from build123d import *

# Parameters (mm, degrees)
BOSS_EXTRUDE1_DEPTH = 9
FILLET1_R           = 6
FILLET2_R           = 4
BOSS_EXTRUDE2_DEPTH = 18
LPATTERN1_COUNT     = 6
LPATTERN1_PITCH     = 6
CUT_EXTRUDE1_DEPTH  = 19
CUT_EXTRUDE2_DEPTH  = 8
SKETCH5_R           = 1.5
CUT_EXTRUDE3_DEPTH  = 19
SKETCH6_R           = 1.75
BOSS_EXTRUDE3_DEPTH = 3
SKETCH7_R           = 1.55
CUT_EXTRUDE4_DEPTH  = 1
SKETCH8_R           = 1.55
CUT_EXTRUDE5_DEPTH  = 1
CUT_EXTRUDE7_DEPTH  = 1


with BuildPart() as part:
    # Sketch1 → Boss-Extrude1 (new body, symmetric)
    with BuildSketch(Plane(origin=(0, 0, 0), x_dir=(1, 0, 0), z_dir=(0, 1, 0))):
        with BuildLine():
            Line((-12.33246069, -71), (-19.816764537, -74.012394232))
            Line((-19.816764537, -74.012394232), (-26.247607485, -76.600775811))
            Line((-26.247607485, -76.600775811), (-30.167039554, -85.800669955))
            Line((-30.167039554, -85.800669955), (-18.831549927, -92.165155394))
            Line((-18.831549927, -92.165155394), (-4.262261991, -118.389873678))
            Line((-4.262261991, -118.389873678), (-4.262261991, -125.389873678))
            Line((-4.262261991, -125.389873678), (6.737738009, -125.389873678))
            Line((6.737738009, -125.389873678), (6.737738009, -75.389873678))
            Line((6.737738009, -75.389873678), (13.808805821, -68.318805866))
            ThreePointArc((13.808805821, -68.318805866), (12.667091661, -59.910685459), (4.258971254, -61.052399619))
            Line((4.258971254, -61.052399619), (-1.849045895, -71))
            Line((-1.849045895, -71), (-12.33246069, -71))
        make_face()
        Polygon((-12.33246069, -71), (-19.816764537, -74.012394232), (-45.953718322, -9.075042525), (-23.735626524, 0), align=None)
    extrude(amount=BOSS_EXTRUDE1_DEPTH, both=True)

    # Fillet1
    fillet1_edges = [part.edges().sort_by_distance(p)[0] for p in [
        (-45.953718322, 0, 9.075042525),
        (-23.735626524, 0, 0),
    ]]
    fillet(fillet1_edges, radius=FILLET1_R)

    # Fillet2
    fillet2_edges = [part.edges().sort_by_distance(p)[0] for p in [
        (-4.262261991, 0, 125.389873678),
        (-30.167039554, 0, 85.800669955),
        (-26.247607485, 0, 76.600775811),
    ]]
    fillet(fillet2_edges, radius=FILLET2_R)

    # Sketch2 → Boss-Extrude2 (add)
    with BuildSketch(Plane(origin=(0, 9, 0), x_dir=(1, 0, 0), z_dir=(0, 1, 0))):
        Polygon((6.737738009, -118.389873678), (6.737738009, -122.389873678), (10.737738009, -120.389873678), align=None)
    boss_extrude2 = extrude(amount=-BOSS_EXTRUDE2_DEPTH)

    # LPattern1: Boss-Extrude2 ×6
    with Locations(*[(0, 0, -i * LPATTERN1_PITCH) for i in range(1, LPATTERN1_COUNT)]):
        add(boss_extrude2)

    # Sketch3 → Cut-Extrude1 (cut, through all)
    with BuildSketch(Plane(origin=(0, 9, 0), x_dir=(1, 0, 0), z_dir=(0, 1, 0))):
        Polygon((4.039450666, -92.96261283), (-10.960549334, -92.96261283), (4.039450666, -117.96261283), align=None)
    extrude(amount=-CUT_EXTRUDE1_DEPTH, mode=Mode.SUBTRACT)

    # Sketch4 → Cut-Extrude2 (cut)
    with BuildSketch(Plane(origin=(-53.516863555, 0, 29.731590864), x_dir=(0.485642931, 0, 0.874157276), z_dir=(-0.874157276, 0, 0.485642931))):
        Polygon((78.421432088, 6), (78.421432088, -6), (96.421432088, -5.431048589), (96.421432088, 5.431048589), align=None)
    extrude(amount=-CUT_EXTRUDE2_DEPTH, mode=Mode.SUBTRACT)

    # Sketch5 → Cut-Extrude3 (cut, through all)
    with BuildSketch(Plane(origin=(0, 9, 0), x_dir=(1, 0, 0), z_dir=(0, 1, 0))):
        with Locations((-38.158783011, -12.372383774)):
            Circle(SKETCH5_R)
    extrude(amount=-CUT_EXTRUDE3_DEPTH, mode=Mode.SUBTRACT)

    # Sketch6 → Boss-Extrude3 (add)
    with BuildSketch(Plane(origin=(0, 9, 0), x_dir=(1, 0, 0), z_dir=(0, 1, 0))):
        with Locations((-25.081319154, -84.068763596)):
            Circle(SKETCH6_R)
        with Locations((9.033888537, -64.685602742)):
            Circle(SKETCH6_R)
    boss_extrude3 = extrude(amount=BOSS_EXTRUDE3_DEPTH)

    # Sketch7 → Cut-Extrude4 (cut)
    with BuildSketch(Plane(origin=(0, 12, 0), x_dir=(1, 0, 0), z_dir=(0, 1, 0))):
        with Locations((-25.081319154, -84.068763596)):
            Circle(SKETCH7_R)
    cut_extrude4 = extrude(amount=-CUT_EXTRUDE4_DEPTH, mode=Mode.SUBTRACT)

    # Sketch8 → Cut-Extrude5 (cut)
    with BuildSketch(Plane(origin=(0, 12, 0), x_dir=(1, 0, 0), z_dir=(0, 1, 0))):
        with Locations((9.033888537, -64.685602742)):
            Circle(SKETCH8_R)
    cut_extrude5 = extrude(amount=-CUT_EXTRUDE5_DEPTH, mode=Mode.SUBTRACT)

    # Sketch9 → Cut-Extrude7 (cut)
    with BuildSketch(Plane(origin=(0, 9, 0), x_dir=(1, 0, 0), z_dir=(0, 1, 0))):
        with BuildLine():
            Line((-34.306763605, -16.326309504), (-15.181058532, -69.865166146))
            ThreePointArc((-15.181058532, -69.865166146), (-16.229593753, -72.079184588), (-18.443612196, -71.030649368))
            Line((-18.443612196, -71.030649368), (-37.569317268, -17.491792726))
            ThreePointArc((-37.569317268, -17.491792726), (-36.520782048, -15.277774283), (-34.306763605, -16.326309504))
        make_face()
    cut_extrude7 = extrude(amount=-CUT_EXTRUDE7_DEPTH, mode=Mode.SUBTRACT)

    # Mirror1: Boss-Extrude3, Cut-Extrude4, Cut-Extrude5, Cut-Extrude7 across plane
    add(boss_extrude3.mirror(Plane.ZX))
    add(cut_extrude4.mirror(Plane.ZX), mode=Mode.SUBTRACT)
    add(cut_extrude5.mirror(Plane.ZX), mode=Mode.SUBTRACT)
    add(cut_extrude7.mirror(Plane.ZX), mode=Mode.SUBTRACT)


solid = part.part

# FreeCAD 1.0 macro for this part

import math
import FreeCAD as App
import Part
import Sketcher

V = App.Vector
Q = App.Units.Quantity


def edges_at(feature, points):
    """Names of the edges that pass closest to the given points."""
    edges = feature.Shape.Edges
    near = lambda p: min(range(len(edges)), key=lambda i: edges[i].distToShape(Part.Vertex(*p))[0])
    return sorted({f"Edge{near(p) + 1}" for p in points})


def add_polygon(sketch, points):
    """Adds a closed chain of lines whose ends are joined by coincident constraints."""
    first, n = sketch.GeometryCount, len(points)
    for a, b in zip(points, points[1:] + points[:1]):
        sketch.addGeometry(Part.LineSegment(App.Vector(*a, 0), App.Vector(*b, 0)), False)
    for i in range(n):
        sketch.addConstraint(Sketcher.Constraint("Coincident", first + i, 2, first + (i + 1) % n, 1))

doc = App.newDocument("Part")
body = doc.addObject("PartDesign::Body", "Body")

# Sketch on XZ plane
sketch1 = body.newObject("Sketcher::SketchObject", "Sketch")
sketch1.AttachmentSupport = (doc.getObject("XZ_Plane"), [""])
sketch1.MapMode = "FlatFace"
sketch1.addGeometry(Part.LineSegment(V(-19.816765, 74.012394, 0), V(-26.247607, 76.600776, 0)), False)
sketch1.addGeometry(Part.LineSegment(V(-26.247607, 76.600776, 0), V(-30.16704, 85.80067, 0)), False)
sketch1.addGeometry(Part.LineSegment(V(-30.16704, 85.80067, 0), V(-18.83155, 92.165155, 0)), False)
sketch1.addGeometry(Part.LineSegment(V(-18.83155, 92.165155, 0), V(-4.262262, 118.389874, 0)), False)
sketch1.addGeometry(Part.LineSegment(V(-4.262262, 118.389874, 0), V(-4.262262, 125.389874, 0)), False)
sketch1.addGeometry(Part.LineSegment(V(-4.262262, 125.389874, 0), V(6.737738, 125.389874, 0)), False)
sketch1.addGeometry(Part.LineSegment(V(6.737738, 125.389874, 0), V(6.737738, 75.389874, 0)), False)
sketch1.addGeometry(Part.LineSegment(V(6.737738, 75.389874, 0), V(13.808806, 68.318806, 0)), False)
sketch1.addGeometry(Part.ArcOfCircle(Part.Circle(V(9.033889, 64.685603, 0), V(0, 0, 1), 6), math.radians(-142.732733), math.radians(37.267267)), False)
sketch1.addGeometry(Part.LineSegment(V(4.258971, 61.0524, 0), V(-1.849046, 71, 0)), False)
sketch1.addGeometry(Part.LineSegment(V(-1.849046, 71, 0), V(-12.332461, 71, 0)), False)
sketch1.addGeometry(Part.LineSegment(V(-12.332461, 71, 0), V(-23.735627, 0, 0)), False)
sketch1.addGeometry(Part.LineSegment(V(-23.735627, 0, 0), V(-45.953718, 9.075043, 0)), False)
sketch1.addGeometry(Part.LineSegment(V(-45.953718, 9.075043, 0), V(-19.816765, 74.012394, 0)), False)
sketch1.addConstraint(Sketcher.Constraint("Coincident", 0, 2, 1, 1))
sketch1.addConstraint(Sketcher.Constraint("Coincident", 1, 2, 2, 1))
sketch1.addConstraint(Sketcher.Constraint("Coincident", 2, 2, 3, 1))
sketch1.addConstraint(Sketcher.Constraint("Coincident", 3, 2, 4, 1))
sketch1.addConstraint(Sketcher.Constraint("Coincident", 4, 2, 5, 1))
sketch1.addConstraint(Sketcher.Constraint("Coincident", 5, 2, 6, 1))
sketch1.addConstraint(Sketcher.Constraint("Coincident", 6, 2, 7, 1))
sketch1.addConstraint(Sketcher.Constraint("Coincident", 7, 2, 8, 2))
sketch1.addConstraint(Sketcher.Constraint("Coincident", 8, 1, 9, 1))
sketch1.addConstraint(Sketcher.Constraint("Coincident", 9, 2, 10, 1))
sketch1.addConstraint(Sketcher.Constraint("Coincident", 10, 2, 11, 1))
sketch1.addConstraint(Sketcher.Constraint("Coincident", 11, 2, 12, 1))
sketch1.addConstraint(Sketcher.Constraint("Coincident", 12, 2, 13, 1))
sketch1.addConstraint(Sketcher.Constraint("Coincident", 13, 2, 0, 1))
sketch1.addConstraint(Sketcher.Constraint("Vertical", 4))
sketch1.addConstraint(Sketcher.Constraint("Horizontal", 5))
sketch1.addConstraint(Sketcher.Constraint("Vertical", 6))
sketch1.addConstraint(Sketcher.Constraint("Horizontal", 10))
sketch1.addConstraint(Sketcher.Constraint("PointOnObject", 11, 2, -1))
sketch1.addConstraint(Sketcher.Constraint("Perpendicular", 0, 13))
sketch1.addConstraint(Sketcher.Constraint("Equal", 1, 7))
sketch1.addConstraint(Sketcher.Constraint("Radius", 8, Q("6 mm")))
sketch1.addConstraint(Sketcher.Constraint("DistanceX", 5, 1, 5, 2, Q("11 mm")))
sketch1.addConstraint(Sketcher.Constraint("DistanceY", 4, 1, 4, 2, Q("7 mm")))
sketch1.addConstraint(Sketcher.Constraint("DistanceY", 6, 2, 6, 1, Q("50 mm")))
sketch1.addConstraint(Sketcher.Constraint("Angle", 7, Q("-45 deg")))
sketch1.addConstraint(Sketcher.Constraint("Distance", 1, Q("10 mm")))
sketch1.addConstraint(Sketcher.Constraint("Distance", 2, Q("13 mm")))
sketch1.addConstraint(Sketcher.Constraint("Distance", 3, Q("30 mm")))
sketch1.addConstraint(Sketcher.Constraint("Distance", 12, Q("24 mm")))
sketch1.addConstraint(Sketcher.Constraint("Distance", 13, Q("70 mm")))
sketch1.addConstraint(Sketcher.Constraint("DistanceY", -1, 1, 9, 2, Q("71 mm")))
sketch1.addConstraint(Sketcher.Constraint("DistanceY", -1, 1, 8, 1, Q("61.0524 mm")))
sketch1.addConstraint(Sketcher.Constraint("DistanceX", 10, 2, 6, 2, Q("19.070199 mm")))
sketch1.addConstraint(Sketcher.Constraint("Distance", 9, Q("11.673158 mm")))
sketch1.addConstraint(Sketcher.Constraint("Distance", 11, Q("71.909889 mm")))
sketch1.addConstraint(Sketcher.Constraint("DistanceX", 10, 2, 10, 1, Q("10.483415 mm")))
sketch1.addConstraint(Sketcher.Constraint("DistanceX", -1, 1, 8, 3, Q("9.033889 mm")))
sketch1.addConstraint(Sketcher.Constraint("DistanceX", 1, 2, -1, 1, Q("30.16704 mm")))
sketch1.addConstraint(Sketcher.Constraint("DistanceY", -1, 1, 1, 2, Q("85.80067 mm")))
sketch1.addConstraint(Sketcher.Constraint("DistanceX", 2, 2, -1, 1, Q("18.83155 mm")))
sketch1.addConstraint(Sketcher.Constraint("DistanceX", 12, 2, -1, 1, Q("45.953718 mm")))
sketch1.addConstraint(Sketcher.Constraint("DistanceY", 0, 2, 2, 2, Q("15.56438 mm")))
pad1 = body.newObject("PartDesign::Pad", "Pad")
pad1.Profile = sketch1
pad1.Length = 18
pad1.Midplane = True
doc.recompute()

fillet = body.newObject("PartDesign::Fillet", "Fillet")
fillet.Base = (pad1, edges_at(pad1, [(-45.954, 0, 9.075), (-23.736, 0, 0)]))
fillet.Radius = 6
doc.recompute()

fillet2 = body.newObject("PartDesign::Fillet", "Fillet001")
fillet2.Base = (fillet, edges_at(fillet, [(-4.262, 0, 125.39), (-30.167, 0, 85.801), (-26.248, 0, 76.601)]))
fillet2.Radius = 4

# Sketch on XZ plane
sketch2 = body.newObject("Sketcher::SketchObject", "Sketch001")
sketch2.AttachmentSupport = (doc.getObject("XZ_Plane"), [""])
sketch2.MapMode = "FlatFace"
sketch2.AttachmentOffset = App.Placement(V(0, 0, -9), App.Rotation())
add_polygon(sketch2, [(6.737738, 118.389874), (6.737738, 122.389874), (10.737738, 120.389874)])  # lines 0-2
sketch2.addConstraint(Sketcher.Constraint("Vertical", 0))
sketch2.addConstraint(Sketcher.Constraint("Equal", 1, 2))
sketch2.addConstraint(Sketcher.Constraint("DistanceY", 0, 1, 0, 2, Q("4 mm")))
sketch2.addConstraint(Sketcher.Constraint("DistanceX", 0, 2, 1, 2, Q("4 mm")))
sketch2.addConstraint(Sketcher.Constraint("DistanceX", -1, 1, 0, 2, Q("6.737738 mm")))
sketch2.addConstraint(Sketcher.Constraint("DistanceY", -1, 1, 0, 2, Q("122.389874 mm")))
pad2 = body.newObject("PartDesign::Pad", "Pad001")
pad2.Profile = sketch2
pad2.Length = 18
doc.recompute()

linearpattern = body.newObject("PartDesign::LinearPattern", "LinearPattern")
linearpattern.Originals = [pad2]
linearpattern.Direction = (doc.getObject("Z_Axis"), [""])
linearpattern.Mode = "offset"
linearpattern.Offset = 6
linearpattern.Occurrences = 6
linearpattern.Reversed = True
body.Tip = linearpattern

# Sketch on XZ plane
sketch3 = body.newObject("Sketcher::SketchObject", "Sketch002")
sketch3.AttachmentSupport = (doc.getObject("XZ_Plane"), [""])
sketch3.MapMode = "FlatFace"
sketch3.AttachmentOffset = App.Placement(V(0, 0, -9), App.Rotation())
add_polygon(sketch3, [(4.039451, 92.962613), (-10.960549, 92.962613), (4.039451, 117.962613)])  # lines 0-2
sketch3.addConstraint(Sketcher.Constraint("Horizontal", 0))
sketch3.addConstraint(Sketcher.Constraint("Vertical", 2))
sketch3.addConstraint(Sketcher.Constraint("DistanceX", 0, 2, 0, 1, Q("15 mm")))
sketch3.addConstraint(Sketcher.Constraint("DistanceY", 2, 2, 2, 1, Q("25 mm")))
sketch3.addConstraint(Sketcher.Constraint("DistanceX", 0, 2, -1, 1, Q("10.960549 mm")))
sketch3.addConstraint(Sketcher.Constraint("DistanceY", -1, 1, 0, 2, Q("92.962613 mm")))
pocket1 = body.newObject("PartDesign::Pocket", "Pocket")
pocket1.Profile = sketch3
pocket1.Type = "ThroughAll"
pocket1.Reversed = True

# Sketch on an angled plane
sketch4 = body.newObject("Sketcher::SketchObject", "Sketch003")
sketch4.Placement = App.Placement(V(-53.516864, 0, 29.731591), App.Rotation(V(0.485642931, 0, 0.874157276), V(0, 1, 0), V(-0.874157276, 0, 0.485642931), "ZXY"))
add_polygon(sketch4, [(78.421432, 6), (78.421432, -6), (96.421432, -5.431049), (96.421432, 5.431049)])  # lines 0-3
sketch4.addConstraint(Sketcher.Constraint("Vertical", 0))
sketch4.addConstraint(Sketcher.Constraint("Vertical", 2))
sketch4.addConstraint(Sketcher.Constraint("Equal", 1, 3))
sketch4.addConstraint(Sketcher.Constraint("DistanceY", 0, 2, 0, 1, Q("12 mm")))
sketch4.addConstraint(Sketcher.Constraint("DistanceY", 0, 2, -1, 1, Q("6 mm")))
sketch4.addConstraint(Sketcher.Constraint("DistanceX", 0, 2, 1, 2, Q("18 mm")))
sketch4.addConstraint(Sketcher.Constraint("Distance", 1, Q("18.00899 mm")))
sketch4.addConstraint(Sketcher.Constraint("DistanceX", -1, 1, 0, 2, Q("78.421432 mm")))
pocket2 = body.newObject("PartDesign::Pocket", "Pocket001")
pocket2.Profile = sketch4
pocket2.Length = 8

# Sketch on XZ plane
sketch5 = body.newObject("Sketcher::SketchObject", "Sketch004")
sketch5.AttachmentSupport = (doc.getObject("XZ_Plane"), [""])
sketch5.MapMode = "FlatFace"
sketch5.AttachmentOffset = App.Placement(V(0, 0, -9), App.Rotation())
sketch5.addGeometry(Part.Circle(V(-38.158783, 12.372384, 0), V(0, 0, 1), 1.5), False)
sketch5.addConstraint(Sketcher.Constraint("Diameter", 0, Q("3 mm")))
sketch5.addConstraint(Sketcher.Constraint("DistanceX", 0, 3, -1, 1, Q("38.158783 mm")))
sketch5.addConstraint(Sketcher.Constraint("DistanceY", -1, 1, 0, 3, Q("12.372384 mm")))
pocket3 = body.newObject("PartDesign::Pocket", "Pocket002")
pocket3.Profile = sketch5
pocket3.Type = "ThroughAll"
pocket3.Reversed = True

# Sketch on XZ plane
sketch6 = body.newObject("Sketcher::SketchObject", "Sketch005")
sketch6.AttachmentSupport = (doc.getObject("XZ_Plane"), [""])
sketch6.MapMode = "FlatFace"
sketch6.AttachmentOffset = App.Placement(V(0, 0, -9), App.Rotation())
sketch6.addGeometry(Part.Circle(V(-25.081319, 84.068764, 0), V(0, 0, 1), 1.75), False)
sketch6.addGeometry(Part.Circle(V(9.033889, 64.685603, 0), V(0, 0, 1), 1.75), False)
sketch6.addConstraint(Sketcher.Constraint("Equal", 0, 1))
sketch6.addConstraint(Sketcher.Constraint("Diameter", 0, Q("3.5 mm")))
sketch6.addConstraint(Sketcher.Constraint("DistanceX", 0, 3, -1, 1, Q("25.081319 mm")))
sketch6.addConstraint(Sketcher.Constraint("DistanceX", -1, 1, 1, 3, Q("9.033889 mm")))
sketch6.addConstraint(Sketcher.Constraint("DistanceY", 1, 3, 0, 3, Q("19.383161 mm")))
sketch6.addConstraint(Sketcher.Constraint("DistanceY", -1, 1, 0, 3, Q("84.068764 mm")))
pad3 = body.newObject("PartDesign::Pad", "Pad002")
pad3.Profile = sketch6
pad3.Length = 3
pad3.Reversed = True

# Sketch on XZ plane
sketch7 = body.newObject("Sketcher::SketchObject", "Sketch006")
sketch7.AttachmentSupport = (doc.getObject("XZ_Plane"), [""])
sketch7.MapMode = "FlatFace"
sketch7.AttachmentOffset = App.Placement(V(0, 0, -12), App.Rotation())
sketch7.addGeometry(Part.Circle(V(-25.081319, 84.068764, 0), V(0, 0, 1), 1.55), False)
sketch7.addConstraint(Sketcher.Constraint("Diameter", 0, Q("3.1 mm")))
sketch7.addConstraint(Sketcher.Constraint("DistanceX", 0, 3, -1, 1, Q("25.081319 mm")))
sketch7.addConstraint(Sketcher.Constraint("DistanceY", -1, 1, 0, 3, Q("84.068764 mm")))
pocket4 = body.newObject("PartDesign::Pocket", "Pocket003")
pocket4.Profile = sketch7
pocket4.Length = 1
pocket4.Reversed = True

# Sketch on XZ plane
sketch8 = body.newObject("Sketcher::SketchObject", "Sketch007")
sketch8.AttachmentSupport = (doc.getObject("XZ_Plane"), [""])
sketch8.MapMode = "FlatFace"
sketch8.AttachmentOffset = App.Placement(V(0, 0, -12), App.Rotation())
sketch8.addGeometry(Part.Circle(V(9.033889, 64.685603, 0), V(0, 0, 1), 1.55), False)
sketch8.addConstraint(Sketcher.Constraint("Diameter", 0, Q("3.1 mm")))
sketch8.addConstraint(Sketcher.Constraint("DistanceX", -1, 1, 0, 3, Q("9.033889 mm")))
sketch8.addConstraint(Sketcher.Constraint("DistanceY", -1, 1, 0, 3, Q("64.685603 mm")))
pocket5 = body.newObject("PartDesign::Pocket", "Pocket004")
pocket5.Profile = sketch8
pocket5.Length = 1
pocket5.Reversed = True

# Sketch on XZ plane
sketch9 = body.newObject("Sketcher::SketchObject", "Sketch008")
sketch9.AttachmentSupport = (doc.getObject("XZ_Plane"), [""])
sketch9.MapMode = "FlatFace"
sketch9.AttachmentOffset = App.Placement(V(0, 0, -9), App.Rotation())
sketch9.addGeometry(Part.LineSegment(V(-15.181059, 69.865166, 0), V(-34.306764, 16.32631, 0)), False)
sketch9.addGeometry(Part.ArcOfCircle(Part.Circle(V(-35.93804, 16.909051, 0), V(0, 0, 1), 1.732239), math.radians(160.34173), math.radians(340.34173)), False)
sketch9.addGeometry(Part.LineSegment(V(-37.569317, 17.491793, 0), V(-18.443612, 71.030649, 0)), False)
sketch9.addGeometry(Part.ArcOfCircle(Part.Circle(V(-16.812335, 70.447908, 0), V(0, 0, 1), 1.732239), math.radians(-19.65827), math.radians(160.34173)), False)
sketch9.addConstraint(Sketcher.Constraint("Coincident", 0, 2, 1, 2))
sketch9.addConstraint(Sketcher.Constraint("Coincident", 1, 1, 2, 1))
sketch9.addConstraint(Sketcher.Constraint("Coincident", 2, 2, 3, 2))
sketch9.addConstraint(Sketcher.Constraint("Coincident", 3, 1, 0, 1))
sketch9.addConstraint(Sketcher.Constraint("Radius", 1, Q("1.732239 mm")))
sketch9.addConstraint(Sketcher.Constraint("Radius", 3, Q("1.732239 mm")))
sketch9.addConstraint(Sketcher.Constraint("DistanceY", 0, 2, 3, 3, Q("54.121598 mm")))
sketch9.addConstraint(Sketcher.Constraint("DistanceY", 1, 3, 2, 2, Q("54.121598 mm")))
sketch9.addConstraint(Sketcher.Constraint("DistanceX", 1, 3, -1, 1, Q("35.93804 mm")))
sketch9.addConstraint(Sketcher.Constraint("DistanceY", -1, 1, 1, 3, Q("16.909051 mm")))
sketch9.addConstraint(Sketcher.Constraint("DistanceY", -1, 1, 0, 2, Q("16.32631 mm")))
sketch9.addConstraint(Sketcher.Constraint("DistanceX", 3, 1, -1, 1, Q("15.181059 mm")))
sketch9.addConstraint(Sketcher.Constraint("DistanceX", 0, 2, 3, 3, Q("17.494428 mm")))
sketch9.addConstraint(Sketcher.Constraint("DistanceY", 1, 3, 1, 1, Q("0.582742 mm")))
pocket6 = body.newObject("PartDesign::Pocket", "Pocket005")
pocket6.Profile = sketch9
pocket6.Length = 1
pocket6.Reversed = True
doc.recompute()

mirrored = body.newObject("PartDesign::Mirrored", "Mirrored")
mirrored.Originals = [pad3, pocket4, pocket5, pocket6]
mirrored.MirrorPlane = (doc.getObject("XZ_Plane"), [""])
body.Tip = mirrored

doc.recompute()
